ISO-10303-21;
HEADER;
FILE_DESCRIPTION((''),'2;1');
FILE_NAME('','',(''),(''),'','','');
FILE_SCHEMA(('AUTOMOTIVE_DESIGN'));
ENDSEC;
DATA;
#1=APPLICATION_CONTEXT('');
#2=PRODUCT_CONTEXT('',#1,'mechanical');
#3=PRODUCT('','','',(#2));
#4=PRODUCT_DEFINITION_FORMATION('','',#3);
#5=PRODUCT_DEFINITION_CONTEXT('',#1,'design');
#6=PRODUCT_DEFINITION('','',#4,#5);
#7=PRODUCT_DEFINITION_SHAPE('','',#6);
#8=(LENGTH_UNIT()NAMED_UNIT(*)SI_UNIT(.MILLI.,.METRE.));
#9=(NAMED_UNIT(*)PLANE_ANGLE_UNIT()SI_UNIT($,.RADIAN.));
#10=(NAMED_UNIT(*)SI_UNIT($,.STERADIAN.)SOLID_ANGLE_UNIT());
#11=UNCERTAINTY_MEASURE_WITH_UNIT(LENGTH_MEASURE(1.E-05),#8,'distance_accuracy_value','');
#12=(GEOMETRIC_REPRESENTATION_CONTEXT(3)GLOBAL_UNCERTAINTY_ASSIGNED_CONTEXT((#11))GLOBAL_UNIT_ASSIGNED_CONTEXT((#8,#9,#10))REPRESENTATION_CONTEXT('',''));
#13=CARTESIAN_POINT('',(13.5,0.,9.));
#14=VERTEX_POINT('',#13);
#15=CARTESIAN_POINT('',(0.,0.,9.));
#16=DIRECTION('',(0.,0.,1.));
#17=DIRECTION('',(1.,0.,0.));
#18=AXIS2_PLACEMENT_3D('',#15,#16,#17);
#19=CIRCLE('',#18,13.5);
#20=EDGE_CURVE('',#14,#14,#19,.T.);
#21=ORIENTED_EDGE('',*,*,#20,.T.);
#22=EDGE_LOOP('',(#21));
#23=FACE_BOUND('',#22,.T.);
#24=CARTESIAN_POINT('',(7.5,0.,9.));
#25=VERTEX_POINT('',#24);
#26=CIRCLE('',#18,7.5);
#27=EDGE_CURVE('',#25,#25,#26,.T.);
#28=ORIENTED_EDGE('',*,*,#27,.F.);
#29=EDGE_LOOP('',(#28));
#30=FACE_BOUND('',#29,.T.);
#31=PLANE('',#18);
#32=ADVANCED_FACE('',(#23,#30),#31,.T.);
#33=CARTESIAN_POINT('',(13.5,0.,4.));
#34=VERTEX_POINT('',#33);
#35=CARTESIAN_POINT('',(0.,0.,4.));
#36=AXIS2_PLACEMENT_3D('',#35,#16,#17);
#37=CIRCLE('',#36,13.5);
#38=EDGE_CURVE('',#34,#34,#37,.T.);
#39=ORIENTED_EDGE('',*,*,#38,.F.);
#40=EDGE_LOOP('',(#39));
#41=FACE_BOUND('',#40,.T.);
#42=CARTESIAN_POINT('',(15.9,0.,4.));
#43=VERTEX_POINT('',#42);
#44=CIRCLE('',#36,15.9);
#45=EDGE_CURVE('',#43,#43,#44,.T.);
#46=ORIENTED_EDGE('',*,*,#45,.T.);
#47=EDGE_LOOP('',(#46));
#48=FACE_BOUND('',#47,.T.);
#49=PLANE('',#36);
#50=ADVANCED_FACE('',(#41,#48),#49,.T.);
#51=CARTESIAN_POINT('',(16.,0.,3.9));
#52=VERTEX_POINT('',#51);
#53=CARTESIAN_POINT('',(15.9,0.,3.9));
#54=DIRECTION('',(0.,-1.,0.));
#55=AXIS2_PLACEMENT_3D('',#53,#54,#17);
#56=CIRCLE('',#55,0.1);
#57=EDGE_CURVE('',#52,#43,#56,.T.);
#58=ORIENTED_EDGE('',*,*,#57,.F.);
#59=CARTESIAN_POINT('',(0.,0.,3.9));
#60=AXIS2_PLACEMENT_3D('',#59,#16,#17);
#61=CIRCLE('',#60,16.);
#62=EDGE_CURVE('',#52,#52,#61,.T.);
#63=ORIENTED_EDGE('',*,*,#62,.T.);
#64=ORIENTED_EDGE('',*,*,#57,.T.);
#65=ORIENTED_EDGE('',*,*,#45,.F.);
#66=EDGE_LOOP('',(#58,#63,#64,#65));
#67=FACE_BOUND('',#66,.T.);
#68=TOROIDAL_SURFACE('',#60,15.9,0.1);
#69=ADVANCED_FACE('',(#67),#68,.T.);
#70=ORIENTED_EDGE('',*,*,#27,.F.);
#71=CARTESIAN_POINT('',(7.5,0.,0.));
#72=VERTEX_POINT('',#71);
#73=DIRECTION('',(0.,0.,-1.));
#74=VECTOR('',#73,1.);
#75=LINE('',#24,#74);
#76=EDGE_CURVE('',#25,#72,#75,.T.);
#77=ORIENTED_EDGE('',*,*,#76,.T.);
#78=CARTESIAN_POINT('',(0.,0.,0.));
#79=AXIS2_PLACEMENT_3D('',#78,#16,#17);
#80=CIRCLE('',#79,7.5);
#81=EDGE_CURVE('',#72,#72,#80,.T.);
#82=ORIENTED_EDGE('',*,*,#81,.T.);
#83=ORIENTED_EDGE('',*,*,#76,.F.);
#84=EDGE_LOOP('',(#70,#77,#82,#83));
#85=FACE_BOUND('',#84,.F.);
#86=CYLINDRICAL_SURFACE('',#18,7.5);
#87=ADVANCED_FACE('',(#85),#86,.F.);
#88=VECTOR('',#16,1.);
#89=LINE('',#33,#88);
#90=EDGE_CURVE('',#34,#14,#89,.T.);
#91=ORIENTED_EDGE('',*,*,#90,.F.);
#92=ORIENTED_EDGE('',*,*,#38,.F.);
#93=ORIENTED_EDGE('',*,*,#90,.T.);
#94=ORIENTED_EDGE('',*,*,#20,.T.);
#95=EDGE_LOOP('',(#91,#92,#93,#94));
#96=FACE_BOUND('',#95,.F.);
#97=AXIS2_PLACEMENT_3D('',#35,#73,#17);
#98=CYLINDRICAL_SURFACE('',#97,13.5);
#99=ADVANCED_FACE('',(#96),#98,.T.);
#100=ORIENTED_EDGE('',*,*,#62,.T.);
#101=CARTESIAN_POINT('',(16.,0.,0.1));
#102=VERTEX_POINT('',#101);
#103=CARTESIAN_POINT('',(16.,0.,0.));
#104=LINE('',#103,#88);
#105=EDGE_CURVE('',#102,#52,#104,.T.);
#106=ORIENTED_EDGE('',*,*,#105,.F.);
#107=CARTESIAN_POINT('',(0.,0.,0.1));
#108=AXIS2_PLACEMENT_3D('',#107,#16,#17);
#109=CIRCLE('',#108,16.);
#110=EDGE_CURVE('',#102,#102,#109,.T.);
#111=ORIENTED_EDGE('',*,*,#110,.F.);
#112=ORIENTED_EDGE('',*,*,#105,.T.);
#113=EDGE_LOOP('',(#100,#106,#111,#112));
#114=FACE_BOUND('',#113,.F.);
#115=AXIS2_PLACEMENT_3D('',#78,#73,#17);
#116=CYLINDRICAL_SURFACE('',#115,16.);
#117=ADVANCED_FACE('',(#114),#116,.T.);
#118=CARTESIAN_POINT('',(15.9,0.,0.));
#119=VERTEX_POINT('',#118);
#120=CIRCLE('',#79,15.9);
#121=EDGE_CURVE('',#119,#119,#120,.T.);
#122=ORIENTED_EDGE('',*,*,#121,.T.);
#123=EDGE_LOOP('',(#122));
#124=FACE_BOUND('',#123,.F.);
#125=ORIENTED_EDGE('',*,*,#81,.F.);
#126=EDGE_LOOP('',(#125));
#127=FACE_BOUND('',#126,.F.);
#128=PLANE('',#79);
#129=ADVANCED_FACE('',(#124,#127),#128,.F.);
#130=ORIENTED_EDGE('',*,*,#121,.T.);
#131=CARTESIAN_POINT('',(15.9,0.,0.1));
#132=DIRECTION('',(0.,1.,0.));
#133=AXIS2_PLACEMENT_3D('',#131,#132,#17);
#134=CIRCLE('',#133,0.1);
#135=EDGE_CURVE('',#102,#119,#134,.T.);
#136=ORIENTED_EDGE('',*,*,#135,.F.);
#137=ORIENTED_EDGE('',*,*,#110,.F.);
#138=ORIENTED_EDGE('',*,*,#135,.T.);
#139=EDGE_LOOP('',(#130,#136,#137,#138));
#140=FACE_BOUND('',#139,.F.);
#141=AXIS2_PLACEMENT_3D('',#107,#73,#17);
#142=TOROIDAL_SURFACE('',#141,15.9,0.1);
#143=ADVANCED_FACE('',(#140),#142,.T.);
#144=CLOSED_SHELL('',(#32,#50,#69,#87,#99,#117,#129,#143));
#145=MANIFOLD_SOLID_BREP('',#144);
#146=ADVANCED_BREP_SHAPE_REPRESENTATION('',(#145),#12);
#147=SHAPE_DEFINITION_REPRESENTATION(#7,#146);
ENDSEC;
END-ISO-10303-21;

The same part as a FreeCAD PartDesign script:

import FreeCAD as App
import Part
import Sketcher


def edges_at(feature, points):
    """Names of the edges that pass closest to the given points."""
    edges = feature.Shape.Edges
    near = lambda p: min(range(len(edges)), key=lambda i: edges[i].distToShape(Part.Vertex(*p))[0])
    return sorted({f"Edge{near(p) + 1}" for p in points})

doc = App.newDocument("Part")
body = doc.addObject("PartDesign::Body", "Body")

# Sketch on XY plane
sketch1 = body.newObject("Sketcher::SketchObject", "Sketch")
sketch1.AttachmentSupport = (doc.getObject("XY_Plane"), [""])
sketch1.MapMode = "FlatFace"
sketch1.addGeometry(Part.Circle(App.Vector(0, 0, 0), App.Vector(0, 0, 1), 16), False)
sketch1.addConstraint([
    Sketcher.Constraint("Coincident", 0, 3, -1, 1),
    Sketcher.Constraint("Diameter", 0, 32.0),
])
pad1 = body.newObject("PartDesign::Pad", "Pad")
pad1.Profile = sketch1
pad1.Length = 4

# Sketch on XY plane
sketch2 = body.newObject("Sketcher::SketchObject", "Sketch001")
sketch2.AttachmentSupport = (doc.getObject("XY_Plane"), [""])
sketch2.MapMode = "FlatFace"
sketch2.AttachmentOffset = App.Placement(App.Vector(0, 0, 4), App.Rotation())
sketch2.addGeometry(Part.Circle(App.Vector(0, 0, 0), App.Vector(0, 0, 1), 14), False)
sketch2.addConstraint([
    Sketcher.Constraint("Coincident", 0, 3, -1, 1),
    Sketcher.Constraint("Diameter", 0, 27.0),
])
pad2 = body.newObject("PartDesign::Pad", "Pad001")
pad2.Profile = sketch2
pad2.Length = 5

# Sketch on XY plane
sketch3 = body.newObject("Sketcher::SketchObject", "Sketch002")
sketch3.AttachmentSupport = (doc.getObject("XY_Plane"), [""])
sketch3.MapMode = "FlatFace"
sketch3.AttachmentOffset = App.Placement(App.Vector(0, 0, 9), App.Rotation())
sketch3.addGeometry(Part.Circle(App.Vector(0, 0, 0), App.Vector(0, 0, 1), 8), False)
sketch3.addConstraint([
    Sketcher.Constraint("Coincident", 0, 3, -1, 1),
    Sketcher.Constraint("Diameter", 0, 15.0),
])
pocket1 = body.newObject("PartDesign::Pocket", "Pocket")
pocket1.Profile = sketch3
pocket1.Type = "ThroughAll"
doc.recompute()

fillet = body.newObject("PartDesign::Fillet", "Fillet")
fillet.Base = (pocket1, edges_at(pocket1, [(-16, 0, 4), (-16, 0, 0)]))
fillet.Radius = 0.1

doc.recompute()
